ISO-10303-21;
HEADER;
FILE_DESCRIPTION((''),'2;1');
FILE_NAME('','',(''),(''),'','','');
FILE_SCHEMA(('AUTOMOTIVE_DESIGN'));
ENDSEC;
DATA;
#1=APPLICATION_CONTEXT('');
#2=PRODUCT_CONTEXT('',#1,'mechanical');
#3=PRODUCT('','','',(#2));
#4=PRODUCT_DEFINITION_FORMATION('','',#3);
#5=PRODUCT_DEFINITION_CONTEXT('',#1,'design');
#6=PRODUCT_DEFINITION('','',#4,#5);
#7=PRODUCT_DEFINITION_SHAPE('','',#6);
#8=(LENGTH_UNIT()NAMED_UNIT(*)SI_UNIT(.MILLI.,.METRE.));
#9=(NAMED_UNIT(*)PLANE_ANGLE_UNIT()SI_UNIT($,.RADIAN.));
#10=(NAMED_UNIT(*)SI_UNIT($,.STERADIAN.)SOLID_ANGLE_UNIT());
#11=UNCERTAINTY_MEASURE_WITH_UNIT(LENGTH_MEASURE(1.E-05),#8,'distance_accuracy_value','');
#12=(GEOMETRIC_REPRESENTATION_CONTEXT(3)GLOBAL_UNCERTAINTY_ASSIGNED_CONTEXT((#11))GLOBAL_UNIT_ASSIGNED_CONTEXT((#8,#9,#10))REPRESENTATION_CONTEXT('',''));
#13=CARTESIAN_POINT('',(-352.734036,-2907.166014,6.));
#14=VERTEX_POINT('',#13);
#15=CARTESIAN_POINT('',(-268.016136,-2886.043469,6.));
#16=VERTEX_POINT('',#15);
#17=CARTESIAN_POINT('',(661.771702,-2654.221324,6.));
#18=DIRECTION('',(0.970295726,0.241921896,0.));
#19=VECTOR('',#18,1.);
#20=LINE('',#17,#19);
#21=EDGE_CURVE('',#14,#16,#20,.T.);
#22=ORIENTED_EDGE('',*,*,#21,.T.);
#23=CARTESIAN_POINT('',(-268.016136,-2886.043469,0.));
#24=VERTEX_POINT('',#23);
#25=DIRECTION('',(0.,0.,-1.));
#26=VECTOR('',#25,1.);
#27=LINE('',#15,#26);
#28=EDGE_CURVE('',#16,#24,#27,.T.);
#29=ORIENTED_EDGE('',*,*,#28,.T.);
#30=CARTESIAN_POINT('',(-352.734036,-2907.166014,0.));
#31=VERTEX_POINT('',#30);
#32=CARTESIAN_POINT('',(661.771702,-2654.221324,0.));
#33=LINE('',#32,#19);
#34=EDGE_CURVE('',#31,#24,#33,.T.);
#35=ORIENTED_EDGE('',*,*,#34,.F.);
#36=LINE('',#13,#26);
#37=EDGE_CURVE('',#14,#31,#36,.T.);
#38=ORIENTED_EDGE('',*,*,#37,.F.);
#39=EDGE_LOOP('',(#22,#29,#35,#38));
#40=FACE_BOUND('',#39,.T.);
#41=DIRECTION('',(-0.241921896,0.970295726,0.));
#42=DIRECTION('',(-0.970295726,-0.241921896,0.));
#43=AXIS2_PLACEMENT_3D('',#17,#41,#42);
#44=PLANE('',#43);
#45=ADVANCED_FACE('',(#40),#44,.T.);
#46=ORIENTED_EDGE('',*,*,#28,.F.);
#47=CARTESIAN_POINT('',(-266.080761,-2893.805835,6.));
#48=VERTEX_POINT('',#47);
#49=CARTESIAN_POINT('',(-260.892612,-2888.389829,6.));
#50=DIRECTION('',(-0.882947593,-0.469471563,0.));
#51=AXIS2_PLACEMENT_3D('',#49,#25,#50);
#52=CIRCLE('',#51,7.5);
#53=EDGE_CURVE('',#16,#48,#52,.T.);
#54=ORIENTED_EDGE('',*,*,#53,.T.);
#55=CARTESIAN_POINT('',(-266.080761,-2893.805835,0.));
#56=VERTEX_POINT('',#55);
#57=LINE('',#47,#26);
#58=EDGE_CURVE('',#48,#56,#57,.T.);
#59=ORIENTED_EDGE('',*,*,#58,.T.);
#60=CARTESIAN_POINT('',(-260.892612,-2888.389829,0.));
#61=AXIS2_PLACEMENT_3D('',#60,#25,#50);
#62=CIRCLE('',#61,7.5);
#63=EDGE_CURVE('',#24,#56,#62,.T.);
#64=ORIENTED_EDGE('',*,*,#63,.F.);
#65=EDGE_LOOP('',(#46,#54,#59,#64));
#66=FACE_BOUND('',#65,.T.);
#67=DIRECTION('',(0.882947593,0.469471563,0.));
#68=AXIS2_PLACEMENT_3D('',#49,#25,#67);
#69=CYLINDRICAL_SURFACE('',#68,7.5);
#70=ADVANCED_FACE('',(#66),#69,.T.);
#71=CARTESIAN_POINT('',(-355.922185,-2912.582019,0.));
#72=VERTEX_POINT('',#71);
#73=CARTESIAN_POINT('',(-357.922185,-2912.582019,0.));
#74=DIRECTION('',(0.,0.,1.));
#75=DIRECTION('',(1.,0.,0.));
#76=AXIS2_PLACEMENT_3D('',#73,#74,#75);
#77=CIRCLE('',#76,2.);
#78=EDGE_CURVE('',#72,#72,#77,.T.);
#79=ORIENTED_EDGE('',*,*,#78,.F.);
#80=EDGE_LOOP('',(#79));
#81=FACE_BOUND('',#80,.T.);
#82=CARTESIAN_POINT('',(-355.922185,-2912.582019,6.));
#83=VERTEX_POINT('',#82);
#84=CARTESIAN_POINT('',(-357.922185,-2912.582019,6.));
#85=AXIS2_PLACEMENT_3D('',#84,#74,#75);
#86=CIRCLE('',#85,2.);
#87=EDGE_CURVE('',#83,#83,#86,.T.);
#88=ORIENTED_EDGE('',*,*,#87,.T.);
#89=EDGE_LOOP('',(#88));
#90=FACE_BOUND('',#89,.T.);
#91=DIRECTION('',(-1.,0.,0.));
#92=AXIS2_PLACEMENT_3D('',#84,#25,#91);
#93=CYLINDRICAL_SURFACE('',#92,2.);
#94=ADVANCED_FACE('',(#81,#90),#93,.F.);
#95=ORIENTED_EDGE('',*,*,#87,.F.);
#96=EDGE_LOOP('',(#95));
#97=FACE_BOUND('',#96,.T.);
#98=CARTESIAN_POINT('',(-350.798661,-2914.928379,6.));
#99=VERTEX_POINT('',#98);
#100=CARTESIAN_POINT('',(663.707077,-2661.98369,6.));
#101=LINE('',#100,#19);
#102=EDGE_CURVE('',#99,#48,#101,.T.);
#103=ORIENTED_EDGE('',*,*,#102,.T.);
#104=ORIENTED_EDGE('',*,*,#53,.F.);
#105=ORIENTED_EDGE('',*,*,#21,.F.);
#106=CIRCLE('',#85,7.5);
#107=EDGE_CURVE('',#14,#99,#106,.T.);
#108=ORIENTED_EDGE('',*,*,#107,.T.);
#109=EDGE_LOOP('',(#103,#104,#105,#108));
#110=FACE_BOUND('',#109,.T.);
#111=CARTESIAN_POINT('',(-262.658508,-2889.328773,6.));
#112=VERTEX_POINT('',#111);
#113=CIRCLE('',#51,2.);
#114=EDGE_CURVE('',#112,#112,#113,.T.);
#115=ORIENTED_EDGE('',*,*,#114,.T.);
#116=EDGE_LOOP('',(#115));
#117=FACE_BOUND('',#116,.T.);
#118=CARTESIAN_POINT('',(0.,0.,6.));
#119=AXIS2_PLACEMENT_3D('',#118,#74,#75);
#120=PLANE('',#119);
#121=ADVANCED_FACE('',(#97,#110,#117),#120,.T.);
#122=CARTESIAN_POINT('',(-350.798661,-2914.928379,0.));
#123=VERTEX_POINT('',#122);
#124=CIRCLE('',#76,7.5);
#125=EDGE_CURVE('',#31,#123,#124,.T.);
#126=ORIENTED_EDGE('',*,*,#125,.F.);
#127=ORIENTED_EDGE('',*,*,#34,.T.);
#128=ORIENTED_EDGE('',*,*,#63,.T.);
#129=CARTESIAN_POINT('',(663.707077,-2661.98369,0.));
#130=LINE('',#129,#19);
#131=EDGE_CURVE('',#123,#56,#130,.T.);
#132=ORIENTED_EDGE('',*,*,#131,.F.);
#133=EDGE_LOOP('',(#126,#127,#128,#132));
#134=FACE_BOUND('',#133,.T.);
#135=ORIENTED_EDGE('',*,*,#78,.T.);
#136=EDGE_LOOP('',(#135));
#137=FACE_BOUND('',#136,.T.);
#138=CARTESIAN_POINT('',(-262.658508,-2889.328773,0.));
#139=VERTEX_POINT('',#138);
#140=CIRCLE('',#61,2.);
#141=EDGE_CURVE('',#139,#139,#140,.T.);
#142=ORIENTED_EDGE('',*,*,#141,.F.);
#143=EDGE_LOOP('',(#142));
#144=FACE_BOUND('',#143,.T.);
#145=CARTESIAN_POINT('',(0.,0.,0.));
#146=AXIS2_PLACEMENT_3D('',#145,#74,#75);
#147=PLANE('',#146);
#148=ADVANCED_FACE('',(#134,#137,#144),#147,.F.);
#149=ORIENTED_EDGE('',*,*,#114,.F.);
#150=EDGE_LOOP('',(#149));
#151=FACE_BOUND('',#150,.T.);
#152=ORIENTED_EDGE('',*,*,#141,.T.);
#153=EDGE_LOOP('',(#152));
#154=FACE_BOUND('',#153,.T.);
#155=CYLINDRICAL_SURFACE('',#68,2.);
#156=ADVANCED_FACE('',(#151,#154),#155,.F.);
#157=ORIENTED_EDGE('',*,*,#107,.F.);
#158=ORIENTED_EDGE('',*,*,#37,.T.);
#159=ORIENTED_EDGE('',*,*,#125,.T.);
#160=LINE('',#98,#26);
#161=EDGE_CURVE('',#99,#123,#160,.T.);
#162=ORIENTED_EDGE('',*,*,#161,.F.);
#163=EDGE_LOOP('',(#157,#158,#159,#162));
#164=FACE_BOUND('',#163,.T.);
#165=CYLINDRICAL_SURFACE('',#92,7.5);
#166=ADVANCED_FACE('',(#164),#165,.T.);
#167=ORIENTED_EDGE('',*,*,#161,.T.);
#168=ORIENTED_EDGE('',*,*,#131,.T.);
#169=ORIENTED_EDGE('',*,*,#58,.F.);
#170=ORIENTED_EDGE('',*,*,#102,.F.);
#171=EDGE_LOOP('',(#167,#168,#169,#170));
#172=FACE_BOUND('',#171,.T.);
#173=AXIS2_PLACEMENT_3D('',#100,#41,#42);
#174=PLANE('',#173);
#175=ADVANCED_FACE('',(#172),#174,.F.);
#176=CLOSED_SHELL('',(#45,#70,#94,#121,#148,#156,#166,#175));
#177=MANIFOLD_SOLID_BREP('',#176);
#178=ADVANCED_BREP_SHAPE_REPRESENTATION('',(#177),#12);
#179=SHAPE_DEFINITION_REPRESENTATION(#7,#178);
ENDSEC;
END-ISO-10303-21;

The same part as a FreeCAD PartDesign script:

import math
import FreeCAD as App
import Part
import Sketcher
Q = App.Units.Quantity

doc = App.newDocument("Part")
body = doc.addObject("PartDesign::Body", "Body")

# Sketch on XY plane
sketch1 = body.newObject("Sketcher::SketchObject", "Sketch")
sketch1.AttachmentSupport = (doc.getObject("XY_Plane"), [""])
sketch1.MapMode = "FlatFace"
sketch1.addGeometry([
    Part.ArcOfCircle(Part.Circle(App.Vector(-357.9, -2912.6, 0), App.Vector(0, 0, 1), 7.5), math.radians(46), math.radians(342)),  # 0
    Part.LineSegment(App.Vector(-350.8, -2914.9, 0), App.Vector(-308.4, -2904.4, 0)),  # 1
    Part.LineSegment(App.Vector(-308.4, -2904.4, 0), App.Vector(-310.4, -2896.6, 0)),  # 2
    Part.LineSegment(App.Vector(-310.4, -2896.6, 0), App.Vector(-352.7, -2907.2, 0)),  # 3
    Part.Circle(App.Vector(-357.9, -2912.6, 0), App.Vector(0, 0, 1), 2),  # 4
], False)
sketch1.addConstraint([
    Sketcher.Constraint("Coincident", 0, 2, 1, 1),
    Sketcher.Constraint("Coincident", 1, 2, 2, 1),
    Sketcher.Constraint("Coincident", 2, 2, 3, 1),
    Sketcher.Constraint("Coincident", 3, 2, 0, 1),
    Sketcher.Constraint("Coincident", 4, 3, 0, 3),
    Sketcher.Constraint("Perpendicular", 1, 2),
    Sketcher.Constraint("Perpendicular", 2, 3),
    Sketcher.Constraint("Equal", 1, 3),
    Sketcher.Constraint("Diameter", 4, Q("4 mm")),
    Sketcher.Constraint("Radius", 0, Q("7.5 mm")),
    Sketcher.Constraint("Angle", 1, Q("14 deg")),
    Sketcher.Constraint("Distance", 2, Q("8 mm")),
    Sketcher.Constraint("DistanceX", 0, 3, 2, 2, Q("47.547099 mm")),
    Sketcher.Constraint("DistanceY", 0, 3, -1, 1, Q("2912.582019 mm")),
    Sketcher.Constraint("DistanceX", 0, 2, -1, 1, Q("350.798661 mm")),
])
pad1 = body.newObject("PartDesign::Pad", "Pad")
pad1.Profile = sketch1
pad1.Length = 6
body2 = doc.addObject("PartDesign::Body", "Body001")
doc.recompute()

body2.BaseFeature = body
doc.recompute()

mirroring = doc.addObject("Part::Mirroring", "Mirroring")
mirroring.Source = body
mirroring.Base = App.Vector(-972.146788, -242.383417, 6)
mirroring.Normal = App.Vector(-0.970295726, -0.241921896, 0)
body3 = doc.addObject("PartDesign::Body", "Body002")
body3.BaseFeature = mirroring
boolean = body2.newObject("PartDesign::Boolean", "Boolean")
boolean.Type = "Fuse"
boolean.addObjects([body3])
doc.recompute()
mirroring.Visibility = False

doc.recompute()
